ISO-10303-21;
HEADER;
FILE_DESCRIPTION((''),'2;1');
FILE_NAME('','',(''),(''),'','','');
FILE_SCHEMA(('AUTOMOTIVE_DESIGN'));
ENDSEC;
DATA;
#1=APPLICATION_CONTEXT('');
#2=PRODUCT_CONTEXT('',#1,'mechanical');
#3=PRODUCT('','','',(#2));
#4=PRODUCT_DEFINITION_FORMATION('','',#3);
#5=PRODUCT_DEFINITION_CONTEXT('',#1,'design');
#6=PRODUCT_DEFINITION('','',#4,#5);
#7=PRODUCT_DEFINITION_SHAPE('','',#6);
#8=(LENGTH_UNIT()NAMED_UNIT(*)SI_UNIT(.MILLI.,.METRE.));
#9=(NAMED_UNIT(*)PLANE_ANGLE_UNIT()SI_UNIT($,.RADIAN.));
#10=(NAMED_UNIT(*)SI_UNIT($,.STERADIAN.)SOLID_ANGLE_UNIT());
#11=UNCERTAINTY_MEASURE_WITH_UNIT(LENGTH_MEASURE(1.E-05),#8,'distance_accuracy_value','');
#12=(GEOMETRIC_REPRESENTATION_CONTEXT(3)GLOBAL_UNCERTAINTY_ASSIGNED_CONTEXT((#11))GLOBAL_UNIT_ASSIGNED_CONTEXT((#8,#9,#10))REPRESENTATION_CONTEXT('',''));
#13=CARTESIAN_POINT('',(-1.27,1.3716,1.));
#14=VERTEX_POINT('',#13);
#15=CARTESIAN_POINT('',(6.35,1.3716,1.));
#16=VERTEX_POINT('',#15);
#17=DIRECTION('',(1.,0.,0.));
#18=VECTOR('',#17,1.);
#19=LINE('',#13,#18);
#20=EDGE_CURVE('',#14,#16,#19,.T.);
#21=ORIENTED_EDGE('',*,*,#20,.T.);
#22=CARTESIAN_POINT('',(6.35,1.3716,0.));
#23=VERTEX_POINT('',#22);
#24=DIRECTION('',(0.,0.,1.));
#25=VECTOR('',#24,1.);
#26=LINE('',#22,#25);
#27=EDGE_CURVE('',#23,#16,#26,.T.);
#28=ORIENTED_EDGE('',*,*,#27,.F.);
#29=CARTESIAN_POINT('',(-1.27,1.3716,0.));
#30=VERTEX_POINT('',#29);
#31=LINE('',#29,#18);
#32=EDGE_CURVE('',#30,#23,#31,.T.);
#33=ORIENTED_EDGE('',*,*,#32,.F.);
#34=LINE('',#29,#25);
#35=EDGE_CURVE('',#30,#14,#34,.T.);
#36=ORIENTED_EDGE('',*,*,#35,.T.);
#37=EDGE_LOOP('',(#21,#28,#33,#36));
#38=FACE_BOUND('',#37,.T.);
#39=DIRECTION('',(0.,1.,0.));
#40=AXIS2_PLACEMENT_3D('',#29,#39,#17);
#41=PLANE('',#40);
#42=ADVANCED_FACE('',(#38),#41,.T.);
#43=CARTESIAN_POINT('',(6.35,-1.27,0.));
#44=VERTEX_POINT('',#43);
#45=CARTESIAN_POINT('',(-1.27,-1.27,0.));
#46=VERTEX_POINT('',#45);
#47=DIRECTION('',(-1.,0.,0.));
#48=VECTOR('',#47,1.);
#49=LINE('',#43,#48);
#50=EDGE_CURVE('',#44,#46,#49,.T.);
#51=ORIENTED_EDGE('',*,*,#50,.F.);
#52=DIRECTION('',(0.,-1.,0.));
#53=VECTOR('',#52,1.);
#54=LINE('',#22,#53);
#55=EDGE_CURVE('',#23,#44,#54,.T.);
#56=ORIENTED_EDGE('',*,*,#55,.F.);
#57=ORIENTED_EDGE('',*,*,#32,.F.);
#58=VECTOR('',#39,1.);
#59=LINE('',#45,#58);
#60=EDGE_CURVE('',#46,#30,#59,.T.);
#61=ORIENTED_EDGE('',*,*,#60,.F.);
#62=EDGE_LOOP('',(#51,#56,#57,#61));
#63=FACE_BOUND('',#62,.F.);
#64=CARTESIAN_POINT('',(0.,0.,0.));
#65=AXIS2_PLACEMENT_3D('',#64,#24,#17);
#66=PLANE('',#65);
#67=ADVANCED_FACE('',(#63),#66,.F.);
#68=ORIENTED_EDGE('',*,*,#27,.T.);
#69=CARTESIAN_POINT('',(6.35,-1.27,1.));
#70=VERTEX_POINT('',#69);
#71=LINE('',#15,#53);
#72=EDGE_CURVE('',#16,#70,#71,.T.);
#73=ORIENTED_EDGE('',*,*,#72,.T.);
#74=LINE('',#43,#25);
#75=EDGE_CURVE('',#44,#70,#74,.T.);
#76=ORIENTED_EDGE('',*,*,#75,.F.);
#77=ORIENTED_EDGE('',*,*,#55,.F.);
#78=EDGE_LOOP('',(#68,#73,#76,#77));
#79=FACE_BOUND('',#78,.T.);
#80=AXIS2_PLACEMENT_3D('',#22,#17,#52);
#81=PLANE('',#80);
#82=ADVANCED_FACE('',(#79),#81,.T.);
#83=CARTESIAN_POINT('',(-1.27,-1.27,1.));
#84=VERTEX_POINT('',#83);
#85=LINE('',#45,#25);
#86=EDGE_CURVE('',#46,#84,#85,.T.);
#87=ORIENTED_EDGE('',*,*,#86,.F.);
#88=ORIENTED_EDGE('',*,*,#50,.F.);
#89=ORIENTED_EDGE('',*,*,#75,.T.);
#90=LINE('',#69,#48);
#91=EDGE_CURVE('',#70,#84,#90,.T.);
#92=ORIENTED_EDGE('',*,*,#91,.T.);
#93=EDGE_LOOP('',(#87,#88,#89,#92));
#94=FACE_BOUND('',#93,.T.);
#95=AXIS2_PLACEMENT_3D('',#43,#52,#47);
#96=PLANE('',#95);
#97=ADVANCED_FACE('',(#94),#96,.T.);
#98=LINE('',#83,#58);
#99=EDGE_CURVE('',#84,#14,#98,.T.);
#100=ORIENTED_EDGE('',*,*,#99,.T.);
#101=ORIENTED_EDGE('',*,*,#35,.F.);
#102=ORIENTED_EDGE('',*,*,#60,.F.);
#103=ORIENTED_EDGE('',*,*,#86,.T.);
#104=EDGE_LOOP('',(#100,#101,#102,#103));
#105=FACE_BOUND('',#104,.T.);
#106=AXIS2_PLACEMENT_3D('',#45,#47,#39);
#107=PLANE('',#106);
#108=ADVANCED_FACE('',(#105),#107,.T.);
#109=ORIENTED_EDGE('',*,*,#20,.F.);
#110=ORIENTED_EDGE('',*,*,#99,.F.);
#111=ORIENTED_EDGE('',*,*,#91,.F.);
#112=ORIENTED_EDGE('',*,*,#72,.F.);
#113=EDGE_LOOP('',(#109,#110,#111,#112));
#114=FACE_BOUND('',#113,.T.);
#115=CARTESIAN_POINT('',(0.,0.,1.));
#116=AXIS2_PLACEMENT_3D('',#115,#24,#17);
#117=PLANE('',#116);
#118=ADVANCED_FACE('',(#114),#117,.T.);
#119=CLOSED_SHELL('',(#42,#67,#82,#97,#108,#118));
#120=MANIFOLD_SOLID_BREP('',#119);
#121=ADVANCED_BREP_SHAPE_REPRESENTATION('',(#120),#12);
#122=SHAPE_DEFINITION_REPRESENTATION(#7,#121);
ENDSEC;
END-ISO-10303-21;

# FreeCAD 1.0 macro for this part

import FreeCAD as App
import Part
import Sketcher

V = App.Vector
Q = App.Units.Quantity


def add_polygon(sketch, points):
    """Adds a closed chain of lines whose ends are joined by coincident constraints."""
    first, n = sketch.GeometryCount, len(points)
    for a, b in zip(points, points[1:] + points[:1]):
        sketch.addGeometry(Part.LineSegment(App.Vector(*a, 0), App.Vector(*b, 0)), False)
    for i in range(n):
        sketch.addConstraint(Sketcher.Constraint("Coincident", first + i, 2, first + (i + 1) % n, 1))

doc = App.newDocument("Part")
body = doc.addObject("PartDesign::Body", "Body")

# Sketch on XY plane
sketch1 = body.newObject("Sketcher::SketchObject", "Sketch")
sketch1.AttachmentSupport = (doc.getObject("XY_Plane"), [""])
sketch1.MapMode = "FlatFace"
add_polygon(sketch1, [(6.3, 1.4), (-1.3, 1.4), (-1.3, -1.3), (6.3, -1.3)])  # lines 0-3
sketch1.addConstraint(Sketcher.Constraint("Horizontal", 0))
sketch1.addConstraint(Sketcher.Constraint("Vertical", 1))
sketch1.addConstraint(Sketcher.Constraint("Horizontal", 2))
sketch1.addConstraint(Sketcher.Constraint("Vertical", 3))
sketch1.addConstraint(Sketcher.Constraint("DistanceX", 0, 2, 0, 1, Q("0.3 in")))
sketch1.addConstraint(Sketcher.Constraint("DistanceY", 1, 2, 1, 1, Q("0.104 in")))
sketch1.addConstraint(Sketcher.Constraint("DistanceX", 0, 2, -1, 1, Q("0.05 in")))
sketch1.addConstraint(Sketcher.Constraint("DistanceY", 1, 2, -1, 1, Q("0.05 in")))
pad1 = body.newObject("PartDesign::Pad", "Pad")
pad1.Profile = sketch1
pad1.Length = 1

doc.recompute()
